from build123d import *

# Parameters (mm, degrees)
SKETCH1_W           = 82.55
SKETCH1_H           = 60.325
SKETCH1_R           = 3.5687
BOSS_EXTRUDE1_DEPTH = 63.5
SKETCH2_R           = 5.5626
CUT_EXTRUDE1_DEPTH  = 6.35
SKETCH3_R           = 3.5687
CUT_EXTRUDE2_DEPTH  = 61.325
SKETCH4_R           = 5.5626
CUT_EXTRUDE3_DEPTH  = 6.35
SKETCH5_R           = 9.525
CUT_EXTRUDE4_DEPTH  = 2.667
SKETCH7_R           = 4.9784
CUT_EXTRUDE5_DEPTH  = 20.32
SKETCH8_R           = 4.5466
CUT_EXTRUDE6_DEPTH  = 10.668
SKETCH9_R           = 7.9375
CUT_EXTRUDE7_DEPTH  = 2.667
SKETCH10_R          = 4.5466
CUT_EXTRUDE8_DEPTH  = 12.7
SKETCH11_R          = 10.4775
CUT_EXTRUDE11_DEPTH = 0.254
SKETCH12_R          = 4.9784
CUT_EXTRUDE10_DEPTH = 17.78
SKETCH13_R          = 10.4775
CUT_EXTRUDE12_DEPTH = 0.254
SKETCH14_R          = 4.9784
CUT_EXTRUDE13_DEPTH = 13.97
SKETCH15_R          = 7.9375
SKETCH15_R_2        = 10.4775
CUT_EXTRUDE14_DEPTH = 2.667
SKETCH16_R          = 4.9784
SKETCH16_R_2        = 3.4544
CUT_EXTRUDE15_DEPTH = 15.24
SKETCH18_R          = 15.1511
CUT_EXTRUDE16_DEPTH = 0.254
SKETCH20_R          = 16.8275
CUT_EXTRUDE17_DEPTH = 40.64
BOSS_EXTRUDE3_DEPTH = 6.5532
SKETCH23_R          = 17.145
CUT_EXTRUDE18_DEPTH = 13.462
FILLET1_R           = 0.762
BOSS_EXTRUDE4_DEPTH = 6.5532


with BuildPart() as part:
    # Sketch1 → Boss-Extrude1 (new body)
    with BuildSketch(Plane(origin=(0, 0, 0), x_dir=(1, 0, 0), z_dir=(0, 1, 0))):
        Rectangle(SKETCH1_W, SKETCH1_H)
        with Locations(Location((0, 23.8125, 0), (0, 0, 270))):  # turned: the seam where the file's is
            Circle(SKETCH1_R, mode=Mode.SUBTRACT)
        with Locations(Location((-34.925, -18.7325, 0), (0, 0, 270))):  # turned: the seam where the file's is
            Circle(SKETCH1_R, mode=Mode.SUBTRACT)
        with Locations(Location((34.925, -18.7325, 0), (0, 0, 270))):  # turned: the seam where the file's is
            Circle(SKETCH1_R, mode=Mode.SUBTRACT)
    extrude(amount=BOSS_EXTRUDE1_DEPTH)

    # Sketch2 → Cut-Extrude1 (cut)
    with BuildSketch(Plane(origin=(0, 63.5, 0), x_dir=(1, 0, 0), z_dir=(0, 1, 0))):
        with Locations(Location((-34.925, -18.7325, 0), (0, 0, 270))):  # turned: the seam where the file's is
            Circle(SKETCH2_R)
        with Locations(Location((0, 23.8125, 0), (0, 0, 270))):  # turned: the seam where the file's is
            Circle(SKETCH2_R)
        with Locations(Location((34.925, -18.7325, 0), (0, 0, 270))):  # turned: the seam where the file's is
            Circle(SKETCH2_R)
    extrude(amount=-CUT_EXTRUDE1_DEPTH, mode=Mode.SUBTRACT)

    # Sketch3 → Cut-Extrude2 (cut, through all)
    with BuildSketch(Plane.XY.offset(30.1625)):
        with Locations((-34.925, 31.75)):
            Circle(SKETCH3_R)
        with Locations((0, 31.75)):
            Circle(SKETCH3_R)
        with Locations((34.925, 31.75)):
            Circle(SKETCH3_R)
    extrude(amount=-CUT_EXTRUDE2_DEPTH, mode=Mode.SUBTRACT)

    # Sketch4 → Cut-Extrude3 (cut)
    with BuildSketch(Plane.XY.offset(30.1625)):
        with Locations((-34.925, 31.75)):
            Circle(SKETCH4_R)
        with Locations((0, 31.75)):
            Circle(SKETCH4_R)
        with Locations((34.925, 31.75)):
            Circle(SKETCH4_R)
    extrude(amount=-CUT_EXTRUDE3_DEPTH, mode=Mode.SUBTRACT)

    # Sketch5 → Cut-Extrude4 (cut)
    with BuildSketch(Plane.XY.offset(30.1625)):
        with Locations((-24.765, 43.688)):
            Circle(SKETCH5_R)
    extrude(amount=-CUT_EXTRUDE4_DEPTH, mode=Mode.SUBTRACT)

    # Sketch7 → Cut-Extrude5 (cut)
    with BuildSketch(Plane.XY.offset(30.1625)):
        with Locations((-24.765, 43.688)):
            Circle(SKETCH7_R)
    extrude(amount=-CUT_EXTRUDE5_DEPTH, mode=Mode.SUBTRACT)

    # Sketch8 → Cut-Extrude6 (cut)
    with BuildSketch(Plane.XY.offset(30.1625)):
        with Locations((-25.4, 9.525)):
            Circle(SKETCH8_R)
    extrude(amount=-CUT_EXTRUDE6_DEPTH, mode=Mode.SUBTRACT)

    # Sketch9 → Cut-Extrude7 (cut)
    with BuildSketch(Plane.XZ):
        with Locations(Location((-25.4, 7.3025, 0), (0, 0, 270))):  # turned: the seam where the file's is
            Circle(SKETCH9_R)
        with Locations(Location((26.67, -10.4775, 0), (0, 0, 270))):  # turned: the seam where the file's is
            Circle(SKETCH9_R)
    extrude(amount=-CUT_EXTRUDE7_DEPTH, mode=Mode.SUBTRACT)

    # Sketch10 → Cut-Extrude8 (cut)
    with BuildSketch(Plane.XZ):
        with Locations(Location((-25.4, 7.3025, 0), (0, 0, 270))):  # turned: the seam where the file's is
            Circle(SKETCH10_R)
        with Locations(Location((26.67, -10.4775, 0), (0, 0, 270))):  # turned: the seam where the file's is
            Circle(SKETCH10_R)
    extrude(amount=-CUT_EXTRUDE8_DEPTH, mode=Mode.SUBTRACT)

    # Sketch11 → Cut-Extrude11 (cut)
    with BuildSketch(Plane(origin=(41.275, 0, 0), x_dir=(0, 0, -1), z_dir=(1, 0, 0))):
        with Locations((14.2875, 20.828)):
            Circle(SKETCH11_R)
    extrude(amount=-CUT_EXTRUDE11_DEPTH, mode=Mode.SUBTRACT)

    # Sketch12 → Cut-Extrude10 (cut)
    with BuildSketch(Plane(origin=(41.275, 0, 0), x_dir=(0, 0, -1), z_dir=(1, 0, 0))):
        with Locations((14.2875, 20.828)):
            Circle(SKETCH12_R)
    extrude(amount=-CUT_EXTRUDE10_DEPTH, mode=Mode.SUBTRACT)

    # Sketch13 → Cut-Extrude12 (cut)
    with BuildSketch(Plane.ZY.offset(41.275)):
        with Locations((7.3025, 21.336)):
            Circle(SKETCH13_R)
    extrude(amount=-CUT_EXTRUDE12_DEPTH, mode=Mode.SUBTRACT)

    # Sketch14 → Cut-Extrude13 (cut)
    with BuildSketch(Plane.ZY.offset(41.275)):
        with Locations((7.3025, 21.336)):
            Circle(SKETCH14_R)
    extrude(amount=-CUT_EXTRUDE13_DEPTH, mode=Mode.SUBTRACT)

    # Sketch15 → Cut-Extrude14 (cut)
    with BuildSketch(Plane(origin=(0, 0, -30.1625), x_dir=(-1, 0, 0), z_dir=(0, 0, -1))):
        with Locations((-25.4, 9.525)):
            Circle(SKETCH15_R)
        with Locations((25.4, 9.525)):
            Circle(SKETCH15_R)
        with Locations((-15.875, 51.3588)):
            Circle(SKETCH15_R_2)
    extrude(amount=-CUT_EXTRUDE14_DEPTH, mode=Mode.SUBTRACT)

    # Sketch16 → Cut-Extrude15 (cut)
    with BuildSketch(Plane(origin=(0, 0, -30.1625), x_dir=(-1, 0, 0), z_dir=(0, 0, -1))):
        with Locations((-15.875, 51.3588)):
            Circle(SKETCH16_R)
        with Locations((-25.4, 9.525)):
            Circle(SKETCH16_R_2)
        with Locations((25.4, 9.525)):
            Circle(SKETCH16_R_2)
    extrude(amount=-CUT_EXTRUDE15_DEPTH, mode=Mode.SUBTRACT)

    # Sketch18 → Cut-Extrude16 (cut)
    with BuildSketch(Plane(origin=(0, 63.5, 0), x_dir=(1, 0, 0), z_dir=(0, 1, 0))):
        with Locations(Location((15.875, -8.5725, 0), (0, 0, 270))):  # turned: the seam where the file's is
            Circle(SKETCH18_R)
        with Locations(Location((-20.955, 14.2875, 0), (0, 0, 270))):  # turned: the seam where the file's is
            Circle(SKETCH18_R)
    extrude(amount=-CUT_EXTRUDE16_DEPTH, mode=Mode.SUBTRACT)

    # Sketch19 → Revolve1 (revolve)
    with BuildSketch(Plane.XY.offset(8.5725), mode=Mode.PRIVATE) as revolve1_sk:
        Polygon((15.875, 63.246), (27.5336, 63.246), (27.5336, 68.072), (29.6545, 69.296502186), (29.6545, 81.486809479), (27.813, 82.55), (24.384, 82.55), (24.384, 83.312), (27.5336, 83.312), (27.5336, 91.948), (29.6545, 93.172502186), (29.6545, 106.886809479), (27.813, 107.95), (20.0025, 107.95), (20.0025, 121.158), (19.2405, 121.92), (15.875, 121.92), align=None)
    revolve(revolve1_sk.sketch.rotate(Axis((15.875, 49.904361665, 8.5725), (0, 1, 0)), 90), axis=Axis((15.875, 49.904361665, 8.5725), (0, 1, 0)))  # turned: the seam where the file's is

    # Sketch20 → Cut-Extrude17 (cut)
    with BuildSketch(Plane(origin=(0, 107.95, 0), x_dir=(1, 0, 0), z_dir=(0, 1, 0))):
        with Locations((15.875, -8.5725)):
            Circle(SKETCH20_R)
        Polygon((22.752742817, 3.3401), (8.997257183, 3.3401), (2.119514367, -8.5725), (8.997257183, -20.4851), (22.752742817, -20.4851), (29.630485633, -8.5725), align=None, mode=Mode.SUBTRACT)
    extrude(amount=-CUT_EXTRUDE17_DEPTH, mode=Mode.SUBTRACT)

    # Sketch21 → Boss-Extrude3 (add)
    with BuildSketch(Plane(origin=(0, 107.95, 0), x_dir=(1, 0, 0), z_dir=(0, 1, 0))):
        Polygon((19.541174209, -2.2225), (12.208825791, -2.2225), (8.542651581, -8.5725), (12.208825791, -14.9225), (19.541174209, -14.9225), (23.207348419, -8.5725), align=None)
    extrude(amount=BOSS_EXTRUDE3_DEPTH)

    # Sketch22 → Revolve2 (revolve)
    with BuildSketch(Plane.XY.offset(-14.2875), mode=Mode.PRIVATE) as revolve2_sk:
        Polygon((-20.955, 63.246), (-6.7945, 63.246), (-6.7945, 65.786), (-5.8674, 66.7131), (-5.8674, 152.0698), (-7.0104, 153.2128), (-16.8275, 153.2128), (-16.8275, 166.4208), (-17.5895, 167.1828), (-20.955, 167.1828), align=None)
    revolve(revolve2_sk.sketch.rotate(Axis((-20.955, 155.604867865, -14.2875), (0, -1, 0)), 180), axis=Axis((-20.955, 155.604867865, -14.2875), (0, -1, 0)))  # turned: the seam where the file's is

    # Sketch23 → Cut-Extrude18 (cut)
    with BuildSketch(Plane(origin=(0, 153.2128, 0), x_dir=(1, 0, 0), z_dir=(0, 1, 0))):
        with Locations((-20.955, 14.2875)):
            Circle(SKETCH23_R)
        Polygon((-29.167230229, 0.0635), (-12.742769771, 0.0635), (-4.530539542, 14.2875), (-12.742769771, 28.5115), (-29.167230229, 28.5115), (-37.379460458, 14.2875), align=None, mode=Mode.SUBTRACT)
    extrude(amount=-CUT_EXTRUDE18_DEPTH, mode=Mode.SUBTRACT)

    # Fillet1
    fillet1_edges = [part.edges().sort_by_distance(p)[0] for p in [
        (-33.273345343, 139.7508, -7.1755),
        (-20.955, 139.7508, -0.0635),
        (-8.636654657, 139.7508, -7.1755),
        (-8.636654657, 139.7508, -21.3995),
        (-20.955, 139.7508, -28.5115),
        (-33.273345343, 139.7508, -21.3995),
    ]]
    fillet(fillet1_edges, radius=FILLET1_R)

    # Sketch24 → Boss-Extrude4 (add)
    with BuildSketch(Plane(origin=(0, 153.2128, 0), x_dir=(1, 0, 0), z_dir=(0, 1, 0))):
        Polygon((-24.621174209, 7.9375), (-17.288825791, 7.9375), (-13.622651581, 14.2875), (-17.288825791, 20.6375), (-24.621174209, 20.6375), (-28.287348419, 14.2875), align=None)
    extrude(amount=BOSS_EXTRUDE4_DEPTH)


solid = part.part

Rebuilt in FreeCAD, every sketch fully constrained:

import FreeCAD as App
import Part
import Sketcher

V = App.Vector
Q = App.Units.Quantity


def edges_at(feature, points):
    """Names of the edges that pass closest to the given points."""
    edges = feature.Shape.Edges
    near = lambda p: min(range(len(edges)), key=lambda i: edges[i].distToShape(Part.Vertex(*p))[0])
    return sorted({f"Edge{near(p) + 1}" for p in points})

doc = App.newDocument("Part")
body = doc.addObject("PartDesign::Body", "Body")

sketch1 = doc.addObject("Sketcher::SketchObject", "Sketch")
body.addObject(sketch1)
sketch1.AttachmentSupport = (doc.XZ_Plane, [""])
sketch1.MapMode = "FlatFace"
sketch1.addGeometry(Part.LineSegment(V(-41.3, -30.2, 0), V(-41.3, 30.2, 0)), False)
sketch1.addGeometry(Part.LineSegment(V(-41.3, 30.2, 0), V(41.3, 30.2, 0)), False)
sketch1.addGeometry(Part.LineSegment(V(41.3, 30.2, 0), V(41.3, -30.2, 0)), False)
sketch1.addGeometry(Part.LineSegment(V(41.3, -30.2, 0), V(-41.3, -30.2, 0)), False)
sketch1.addGeometry(Part.Circle(V(-34.9, 18.7, 0), V(0, 0, 1), 3.6), False)
sketch1.addGeometry(Part.Circle(V(34.9, 18.7, 0), V(0, 0, 1), 3.6), False)
sketch1.addGeometry(Part.Circle(V(0, -23.8, 0), V(0, 0, 1), 3.6), False)
sketch1.addConstraint(Sketcher.Constraint("Coincident", 0, 2, 1, 1))
sketch1.addConstraint(Sketcher.Constraint("Coincident", 1, 2, 2, 1))
sketch1.addConstraint(Sketcher.Constraint("Coincident", 2, 2, 3, 1))
sketch1.addConstraint(Sketcher.Constraint("Coincident", 3, 2, 0, 1))
sketch1.addConstraint(Sketcher.Constraint("Vertical", 0))
sketch1.addConstraint(Sketcher.Constraint("Horizontal", 1))
sketch1.addConstraint(Sketcher.Constraint("Vertical", 2))
sketch1.addConstraint(Sketcher.Constraint("Horizontal", 3))
sketch1.addConstraint(Sketcher.Constraint("Equal", 4, 5))
sketch1.addConstraint(Sketcher.Constraint("Equal", 5, 6))
sketch1.addConstraint(Sketcher.Constraint("Symmetric", 0, 2, 2, 2, -1, 1))
sketch1.addConstraint(Sketcher.Constraint("Symmetric", 4, 3, 5, 3, -2))
sketch1.addConstraint(Sketcher.Constraint("PointOnObject", 6, 3, -2))
sketch1.addConstraint(Sketcher.Constraint("Diameter", 4, Q("0.281 in")))
sketch1.addConstraint(Sketcher.Constraint("DistanceX", 0, 2, 5, 3, Q("3 in")))
sketch1.addConstraint(Sketcher.Constraint("DistanceX", 1, 1, 1, 2, Q("3.25 in")))
sketch1.addConstraint(Sketcher.Constraint("DistanceY", 0, 1, 0, 2, Q("2.375 in")))
sketch1.addConstraint(Sketcher.Constraint("DistanceY", 4, 3, 0, 2, Q("0.45 in")))
sketch1.addConstraint(Sketcher.Constraint("DistanceY", 2, 2, 6, 3, Q("0.25 in")))
pad1 = doc.addObject("PartDesign::Pad", "Pad")
body.addObject(pad1)
pad1.Profile = sketch1
pad1.Length = Q("2.5 in")
pad1.Reversed = True

sketch2 = doc.addObject("Sketcher::SketchObject", "Sketch001")
body.addObject(sketch2)
sketch2.AttachmentSupport = (doc.XZ_Plane, [""])
sketch2.MapMode = "FlatFace"
sketch2.AttachmentOffset = App.Placement(V(0, 0, -2.5 * 25.4), App.Rotation())
sketch2.addGeometry(Part.Circle(V(-35, 19, 0), V(0, 0, 1), 6), False)
sketch2.addGeometry(Part.Circle(V(0, -24, 0), V(0, 0, 1), 6), False)
sketch2.addGeometry(Part.Circle(V(35, 19, 0), V(0, 0, 1), 6), False)
sketch2.addConstraint(Sketcher.Constraint("Equal", 0, 1))
sketch2.addConstraint(Sketcher.Constraint("Equal", 1, 2))
sketch2.addConstraint(Sketcher.Constraint("Symmetric", 0, 3, 2, 3, -2))
sketch2.addConstraint(Sketcher.Constraint("PointOnObject", 1, 3, -2))
sketch2.addConstraint(Sketcher.Constraint("Diameter", 0, Q("0.438 in")))
sketch2.addConstraint(Sketcher.Constraint("DistanceX", 0, 3, 2, 3, Q("2.75 in")))
sketch2.addConstraint(Sketcher.Constraint("DistanceY", 1, 3, -1, 1, Q("0.9375 in")))
sketch2.addConstraint(Sketcher.Constraint("DistanceY", 1, 3, 0, 3, Q("1.675 in")))
pocket1 = doc.addObject("PartDesign::Pocket", "Pocket")
body.addObject(pocket1)
pocket1.Profile = sketch2
pocket1.Length = Q("0.25 in")
pocket1.Reversed = True

sketch3 = doc.addObject("Sketcher::SketchObject", "Sketch002")
body.addObject(sketch3)
sketch3.AttachmentSupport = (doc.XY_Plane, [""])
sketch3.MapMode = "FlatFace"
sketch3.AttachmentOffset = App.Placement(V(0, 0, 1.1875 * 25.4), App.Rotation())
sketch3.addGeometry(Part.Circle(V(-34.9, 31.8, 0), V(0, 0, 1), 3.6), False)
sketch3.addGeometry(Part.Circle(V(0, 31.8, 0), V(0, 0, 1), 3.6), False)
sketch3.addGeometry(Part.Circle(V(34.9, 31.8, 0), V(0, 0, 1), 3.6), False)
sketch3.addConstraint(Sketcher.Constraint("Equal", 0, 1))
sketch3.addConstraint(Sketcher.Constraint("Equal", 1, 2))
sketch3.addConstraint(Sketcher.Constraint("Symmetric", 0, 3, 2, 3, -2))
sketch3.addConstraint(Sketcher.Constraint("PointOnObject", 1, 3, -2))
sketch3.addConstraint(Sketcher.Constraint("Horizontal", 0, 3, 1, 3))
sketch3.addConstraint(Sketcher.Constraint("Diameter", 0, Q("0.281 in")))
sketch3.addConstraint(Sketcher.Constraint("DistanceY", -1, 1, 0, 3, Q("1.25 in")))
sketch3.addConstraint(Sketcher.Constraint("DistanceX", 0, 3, 2, 3, Q("2.75 in")))
pocket2 = doc.addObject("PartDesign::Pocket", "Pocket001")
body.addObject(pocket2)
pocket2.Profile = sketch3
pocket2.Type = "ThroughAll"

sketch4 = doc.addObject("Sketcher::SketchObject", "Sketch003")
body.addObject(sketch4)
sketch4.AttachmentSupport = (doc.XY_Plane, [""])
sketch4.MapMode = "FlatFace"
sketch4.AttachmentOffset = App.Placement(V(0, 0, 1.1875 * 25.4), App.Rotation())
sketch4.addGeometry(Part.Circle(V(-35, 32, 0), V(0, 0, 1), 6), False)
sketch4.addGeometry(Part.Circle(V(0, 32, 0), V(0, 0, 1), 6), False)
sketch4.addGeometry(Part.Circle(V(35, 32, 0), V(0, 0, 1), 6), False)
sketch4.addConstraint(Sketcher.Constraint("Equal", 0, 1))
sketch4.addConstraint(Sketcher.Constraint("Equal", 1, 2))
sketch4.addConstraint(Sketcher.Constraint("Symmetric", 0, 3, 2, 3, -2))
sketch4.addConstraint(Sketcher.Constraint("PointOnObject", 1, 3, -2))
sketch4.addConstraint(Sketcher.Constraint("Horizontal", 0, 3, 1, 3))
sketch4.addConstraint(Sketcher.Constraint("Diameter", 0, Q("0.438 in")))
sketch4.addConstraint(Sketcher.Constraint("DistanceY", -1, 1, 0, 3, Q("1.25 in")))
sketch4.addConstraint(Sketcher.Constraint("DistanceX", 0, 3, 2, 3, Q("2.75 in")))
pocket3 = doc.addObject("PartDesign::Pocket", "Pocket002")
body.addObject(pocket3)
pocket3.Profile = sketch4
pocket3.Length = Q("0.25 in")

sketch5 = doc.addObject("Sketcher::SketchObject", "Sketch004")
body.addObject(sketch5)
sketch5.AttachmentSupport = (doc.XY_Plane, [""])
sketch5.MapMode = "FlatFace"
sketch5.AttachmentOffset = App.Placement(V(0, 0, 1.1875 * 25.4), App.Rotation())
sketch5.addGeometry(Part.Circle(V(-25, 44, 0), V(0, 0, 1), 10), False)
sketch5.addConstraint(Sketcher.Constraint("Diameter", 0, Q("0.75 in")))
sketch5.addConstraint(Sketcher.Constraint("DistanceY", -1, 1, 0, 3, Q("1.72 in")))
sketch5.addConstraint(Sketcher.Constraint("DistanceX", 0, 3, -1, 1, Q("0.975 in")))
pocket4 = doc.addObject("PartDesign::Pocket", "Pocket003")
body.addObject(pocket4)
pocket4.Profile = sketch5
pocket4.Length = Q("0.105 in")

sketch6 = doc.addObject("Sketcher::SketchObject", "Sketch005")
body.addObject(sketch6)
sketch6.AttachmentSupport = (doc.XY_Plane, [""])
sketch6.MapMode = "FlatFace"
sketch6.AttachmentOffset = App.Placement(V(0, 0, 1.1875 * 25.4), App.Rotation())
sketch6.addGeometry(Part.Circle(V(-24.8, 43.7, 0), V(0, 0, 1), 5), False)
sketch6.addConstraint(Sketcher.Constraint("Diameter", 0, Q("0.392 in")))
sketch6.addConstraint(Sketcher.Constraint("DistanceY", -1, 1, 0, 3, Q("1.72 in")))
sketch6.addConstraint(Sketcher.Constraint("DistanceX", 0, 3, -1, 1, Q("0.975 in")))
pocket5 = doc.addObject("PartDesign::Pocket", "Pocket004")
body.addObject(pocket5)
pocket5.Profile = sketch6
pocket5.Length = Q("0.8 in")

sketch7 = doc.addObject("Sketcher::SketchObject", "Sketch006")
body.addObject(sketch7)
sketch7.AttachmentSupport = (doc.XY_Plane, [""])
sketch7.MapMode = "FlatFace"
sketch7.AttachmentOffset = App.Placement(V(0, 0, 1.1875 * 25.4), App.Rotation())
sketch7.addGeometry(Part.Circle(V(-25.4, 9.5, 0), V(0, 0, 1), 4.5), False)
sketch7.addConstraint(Sketcher.Constraint("Diameter", 0, Q("0.358 in")))
sketch7.addConstraint(Sketcher.Constraint("DistanceX", 0, 3, -1, 1, Q("1 in")))
sketch7.addConstraint(Sketcher.Constraint("DistanceY", -1, 1, 0, 3, Q("0.375 in")))
pocket6 = doc.addObject("PartDesign::Pocket", "Pocket005")
body.addObject(pocket6)
pocket6.Profile = sketch7
pocket6.Length = Q("0.42 in")

sketch8 = doc.addObject("Sketcher::SketchObject", "Sketch007")
body.addObject(sketch8)
sketch8.AttachmentSupport = (doc.XZ_Plane, [""])
sketch8.MapMode = "FlatFace"
sketch8.addGeometry(Part.Circle(V(-25, 7, 0), V(0, 0, 1), 8), False)
sketch8.addGeometry(Part.Circle(V(27, -10, 0), V(0, 0, 1), 8), False)
sketch8.addConstraint(Sketcher.Constraint("Equal", 0, 1))
sketch8.addConstraint(Sketcher.Constraint("Diameter", 0, Q("0.625 in")))
sketch8.addConstraint(Sketcher.Constraint("DistanceX", 0, 3, -1, 1, Q("1 in")))
sketch8.addConstraint(Sketcher.Constraint("DistanceY", 1, 3, 0, 3, Q("0.7 in")))
sketch8.addConstraint(Sketcher.Constraint("DistanceX", -1, 1, 1, 3, Q("1.05 in")))
sketch8.addConstraint(Sketcher.Constraint("DistanceY", -1, 1, 0, 3, Q("0.2875 in")))
pocket7 = doc.addObject("PartDesign::Pocket", "Pocket006")
body.addObject(pocket7)
pocket7.Profile = sketch8
pocket7.Length = Q("0.105 in")

sketch9 = doc.addObject("Sketcher::SketchObject", "Sketch008")
body.addObject(sketch9)
sketch9.AttachmentSupport = (doc.XZ_Plane, [""])
sketch9.MapMode = "FlatFace"
sketch9.addGeometry(Part.Circle(V(-25.4, 7.3, 0), V(0, 0, 1), 4.5), False)
sketch9.addGeometry(Part.Circle(V(26.7, -10.5, 0), V(0, 0, 1), 4.5), False)
sketch9.addConstraint(Sketcher.Constraint("Equal", 0, 1))
sketch9.addConstraint(Sketcher.Constraint("Diameter", 0, Q("0.358 in")))
sketch9.addConstraint(Sketcher.Constraint("DistanceX", 0, 3, -1, 1, Q("1 in")))
sketch9.addConstraint(Sketcher.Constraint("DistanceY", 1, 3, 0, 3, Q("0.7 in")))
sketch9.addConstraint(Sketcher.Constraint("DistanceX", -1, 1, 1, 3, Q("1.05 in")))
sketch9.addConstraint(Sketcher.Constraint("DistanceY", -1, 1, 0, 3, Q("0.2875 in")))
pocket8 = doc.addObject("PartDesign::Pocket", "Pocket007")
body.addObject(pocket8)
pocket8.Profile = sketch9
pocket8.Length = Q("0.5 in")

sketch10 = doc.addObject("Sketcher::SketchObject", "Sketch009")
body.addObject(sketch10)
sketch10.AttachmentSupport = (doc.YZ_Plane, [""])
sketch10.MapMode = "FlatFace"
sketch10.AttachmentOffset = App.Placement(V(0, 0, 1.625 * 25.4), App.Rotation())
sketch10.addGeometry(Part.Circle(V(21, -14, 0), V(0, 0, 1), 10), False)
sketch10.addConstraint(Sketcher.Constraint("Diameter", 0, Q("0.825 in")))
sketch10.addConstraint(Sketcher.Constraint("DistanceX", -1, 1, 0, 3, Q("0.82 in")))
sketch10.addConstraint(Sketcher.Constraint("DistanceY", 0, 3, -1, 1, Q("0.5625 in")))
pocket9 = doc.addObject("PartDesign::Pocket", "Pocket008")
body.addObject(pocket9)
pocket9.Profile = sketch10
pocket9.Length = Q("0.01 in")

sketch11 = doc.addObject("Sketcher::SketchObject", "Sketch010")
body.addObject(sketch11)
sketch11.AttachmentSupport = (doc.YZ_Plane, [""])
sketch11.MapMode = "FlatFace"
sketch11.AttachmentOffset = App.Placement(V(0, 0, 1.625 * 25.4), App.Rotation())
sketch11.addGeometry(Part.Circle(V(20.8, -14.3, 0), V(0, 0, 1), 5), False)
sketch11.addConstraint(Sketcher.Constraint("Diameter", 0, Q("0.392 in")))
sketch11.addConstraint(Sketcher.Constraint("DistanceX", -1, 1, 0, 3, Q("0.82 in")))
sketch11.addConstraint(Sketcher.Constraint("DistanceY", 0, 3, -1, 1, Q("0.5625 in")))
pocket10 = doc.addObject("PartDesign::Pocket", "Pocket009")
body.addObject(pocket10)
pocket10.Profile = sketch11
pocket10.Length = Q("0.7 in")

sketch12 = doc.addObject("Sketcher::SketchObject", "Sketch011")
body.addObject(sketch12)
sketch12.AttachmentSupport = (doc.YZ_Plane, [""])
sketch12.MapMode = "FlatFace"
sketch12.AttachmentOffset = App.Placement(V(0, 0, -1.625 * 25.4), App.Rotation())
sketch12.addGeometry(Part.Circle(V(21, 7, 0), V(0, 0, 1), 10), False)
sketch12.addConstraint(Sketcher.Constraint("Diameter", 0, Q("0.825 in")))
sketch12.addConstraint(Sketcher.Constraint("DistanceX", -1, 1, 0, 3, Q("0.84 in")))
sketch12.addConstraint(Sketcher.Constraint("DistanceY", -1, 1, 0, 3, Q("0.2875 in")))
pocket11 = doc.addObject("PartDesign::Pocket", "Pocket010")
body.addObject(pocket11)
pocket11.Profile = sketch12
pocket11.Length = Q("0.01 in")
pocket11.Reversed = True

sketch13 = doc.addObject("Sketcher::SketchObject", "Sketch012")
body.addObject(sketch13)
sketch13.AttachmentSupport = (doc.YZ_Plane, [""])
sketch13.MapMode = "FlatFace"
sketch13.AttachmentOffset = App.Placement(V(0, 0, -1.625 * 25.4), App.Rotation())
sketch13.addGeometry(Part.Circle(V(21.3, 7.3, 0), V(0, 0, 1), 5), False)
sketch13.addConstraint(Sketcher.Constraint("Diameter", 0, Q("0.392 in")))
sketch13.addConstraint(Sketcher.Constraint("DistanceX", -1, 1, 0, 3, Q("0.84 in")))
sketch13.addConstraint(Sketcher.Constraint("DistanceY", -1, 1, 0, 3, Q("0.2875 in")))
pocket12 = doc.addObject("PartDesign::Pocket", "Pocket011")
body.addObject(pocket12)
pocket12.Profile = sketch13
pocket12.Length = Q("0.55 in")
pocket12.Reversed = True

sketch14 = doc.addObject("Sketcher::SketchObject", "Sketch013")
body.addObject(sketch14)
sketch14.AttachmentSupport = (doc.XY_Plane, [""])
sketch14.MapMode = "FlatFace"
sketch14.AttachmentOffset = App.Placement(V(0, 0, -1.1875 * 25.4), App.Rotation())
sketch14.addGeometry(Part.Circle(V(25, 10, 0), V(0, 0, 1), 8), False)
sketch14.addGeometry(Part.Circle(V(-25, 10, 0), V(0, 0, 1), 8), False)
sketch14.addGeometry(Part.Circle(V(16, 51, 0), V(0, 0, 1), 10), False)
sketch14.addConstraint(Sketcher.Constraint("Equal", 0, 1))
sketch14.addConstraint(Sketcher.Constraint("Symmetric", 0, 3, 1, 3, -2))
sketch14.addConstraint(Sketcher.Constraint("Diameter", 0, Q("0.625 in")))
sketch14.addConstraint(Sketcher.Constraint("Diameter", 2, Q("0.825 in")))
sketch14.addConstraint(Sketcher.Constraint("DistanceX", -1, 1, 0, 3, Q("1 in")))
sketch14.addConstraint(Sketcher.Constraint("DistanceY", -1, 1, 0, 3, Q("0.375 in")))
sketch14.addConstraint(Sketcher.Constraint("DistanceX", -1, 1, 2, 3, Q("0.625 in")))
sketch14.addConstraint(Sketcher.Constraint("DistanceY", -1, 1, 2, 3, Q("2.022 in")))
pocket13 = doc.addObject("PartDesign::Pocket", "Pocket012")
body.addObject(pocket13)
pocket13.Profile = sketch14
pocket13.Length = Q("0.105 in")
pocket13.Reversed = True

sketch15 = doc.addObject("Sketcher::SketchObject", "Sketch014")
body.addObject(sketch15)
sketch15.AttachmentSupport = (doc.XY_Plane, [""])
sketch15.MapMode = "FlatFace"
sketch15.AttachmentOffset = App.Placement(V(0, 0, -1.1875 * 25.4), App.Rotation())
sketch15.addGeometry(Part.Circle(V(15.9, 51.4, 0), V(0, 0, 1), 5), False)
sketch15.addGeometry(Part.Circle(V(25.4, 9.5, 0), V(0, 0, 1), 3.5), False)
sketch15.addGeometry(Part.Circle(V(-25.4, 9.5, 0), V(0, 0, 1), 3.5), False)
sketch15.addConstraint(Sketcher.Constraint("Equal", 1, 2))
sketch15.addConstraint(Sketcher.Constraint("Symmetric", 1, 3, 2, 3, -2))
sketch15.addConstraint(Sketcher.Constraint("Diameter", 0, Q("0.392 in")))
sketch15.addConstraint(Sketcher.Constraint("Diameter", 1, Q("0.272 in")))
sketch15.addConstraint(Sketcher.Constraint("DistanceX", -1, 1, 1, 3, Q("1 in")))
sketch15.addConstraint(Sketcher.Constraint("DistanceX", -1, 1, 0, 3, Q("0.625 in")))
sketch15.addConstraint(Sketcher.Constraint("DistanceY", -1, 1, 0, 3, Q("2.022 in")))
sketch15.addConstraint(Sketcher.Constraint("DistanceY", -1, 1, 1, 3, Q("0.375 in")))
pocket14 = doc.addObject("PartDesign::Pocket", "Pocket013")
body.addObject(pocket14)
pocket14.Profile = sketch15
pocket14.Length = Q("0.6 in")
pocket14.Reversed = True

sketch16 = doc.addObject("Sketcher::SketchObject", "Sketch015")
body.addObject(sketch16)
sketch16.AttachmentSupport = (doc.XZ_Plane, [""])
sketch16.MapMode = "FlatFace"
sketch16.AttachmentOffset = App.Placement(V(0, 0, -2.5 * 25.4), App.Rotation())
sketch16.addGeometry(Part.Circle(V(16, 9, 0), V(0, 0, 1), 15), False)
sketch16.addGeometry(Part.Circle(V(-21, -14, 0), V(0, 0, 1), 15), False)
sketch16.addConstraint(Sketcher.Constraint("Equal", 0, 1))
sketch16.addConstraint(Sketcher.Constraint("Diameter", 0, Q("1.193 in")))
sketch16.addConstraint(Sketcher.Constraint("DistanceY", 1, 3, 0, 3, Q("0.9 in")))
sketch16.addConstraint(Sketcher.Constraint("DistanceX", 1, 3, 0, 3, Q("1.45 in")))
sketch16.addConstraint(Sketcher.Constraint("DistanceX", -1, 1, 0, 3, Q("0.625 in")))
sketch16.addConstraint(Sketcher.Constraint("DistanceY", 1, 3, -1, 1, Q("0.5625 in")))
pocket15 = doc.addObject("PartDesign::Pocket", "Pocket014")
body.addObject(pocket15)
pocket15.Profile = sketch16
pocket15.Length = Q("0.01 in")
pocket15.Reversed = True

sketch17 = doc.addObject("Sketcher::SketchObject", "Sketch016")
body.addObject(sketch17)
sketch17.AttachmentSupport = (doc.XY_Plane, [""])
sketch17.MapMode = "FlatFace"
sketch17.AttachmentOffset = App.Placement(V(0, 0, 0.3375 * 25.4), App.Rotation())
sketch17.addGeometry(Part.LineSegment(V(15.9, 63.2, 0), V(27.5, 63.2, 0)), False)
sketch17.addGeometry(Part.LineSegment(V(27.5, 63.2, 0), V(27.5, 68.1, 0)), False)
sketch17.addGeometry(Part.LineSegment(V(27.5, 68.1, 0), V(29.7, 69.3, 0)), False)
sketch17.addGeometry(Part.LineSegment(V(29.7, 69.3, 0), V(29.7, 81.5, 0)), False)
sketch17.addGeometry(Part.LineSegment(V(29.7, 81.5, 0), V(27.8, 82.5, 0)), False)
sketch17.addGeometry(Part.LineSegment(V(27.8, 82.5, 0), V(24.4, 82.5, 0)), False)
sketch17.addGeometry(Part.LineSegment(V(24.4, 82.5, 0), V(24.4, 83.3, 0)), False)
sketch17.addGeometry(Part.LineSegment(V(24.4, 83.3, 0), V(27.5, 83.3, 0)), False)
sketch17.addGeometry(Part.LineSegment(V(27.5, 83.3, 0), V(27.5, 91.9, 0)), False)
sketch17.addGeometry(Part.LineSegment(V(27.5, 91.9, 0), V(29.7, 93.2, 0)), False)
sketch17.addGeometry(Part.LineSegment(V(29.7, 93.2, 0), V(29.7, 106.9, 0)), False)
sketch17.addGeometry(Part.LineSegment(V(29.7, 106.9, 0), V(27.8, 108, 0)), False)
sketch17.addGeometry(Part.LineSegment(V(27.8, 108, 0), V(20, 108, 0)), False)
sketch17.addGeometry(Part.LineSegment(V(20, 108, 0), V(20, 121.2, 0)), False)
sketch17.addGeometry(Part.LineSegment(V(20, 121.2, 0), V(19.2, 121.9, 0)), False)
sketch17.addGeometry(Part.LineSegment(V(19.2, 121.9, 0), V(15.9, 121.9, 0)), False)
sketch17.addGeometry(Part.LineSegment(V(15.9, 121.9, 0), V(15.9, 63.2, 0)), False)
sketch17.addGeometry(Part.LineSegment(V(15.9, 63.2, 0), V(15.9, 121.9, 0)), True)
sketch17.addConstraint(Sketcher.Constraint("Coincident", 0, 2, 1, 1))
sketch17.addConstraint(Sketcher.Constraint("Coincident", 1, 2, 2, 1))
sketch17.addConstraint(Sketcher.Constraint("Coincident", 2, 2, 3, 1))
sketch17.addConstraint(Sketcher.Constraint("Coincident", 3, 2, 4, 1))
sketch17.addConstraint(Sketcher.Constraint("Coincident", 4, 2, 5, 1))
sketch17.addConstraint(Sketcher.Constraint("Coincident", 5, 2, 6, 1))
sketch17.addConstraint(Sketcher.Constraint("Coincident", 6, 2, 7, 1))
sketch17.addConstraint(Sketcher.Constraint("Coincident", 7, 2, 8, 1))
sketch17.addConstraint(Sketcher.Constraint("Coincident", 8, 2, 9, 1))
sketch17.addConstraint(Sketcher.Constraint("Coincident", 9, 2, 10, 1))
sketch17.addConstraint(Sketcher.Constraint("Coincident", 10, 2, 11, 1))
sketch17.addConstraint(Sketcher.Constraint("Coincident", 11, 2, 12, 1))
sketch17.addConstraint(Sketcher.Constraint("Coincident", 12, 2, 13, 1))
sketch17.addConstraint(Sketcher.Constraint("Coincident", 13, 2, 14, 1))
sketch17.addConstraint(Sketcher.Constraint("Coincident", 14, 2, 15, 1))
sketch17.addConstraint(Sketcher.Constraint("Coincident", 15, 2, 16, 1))
sketch17.addConstraint(Sketcher.Constraint("Coincident", 16, 2, 0, 1))
sketch17.addConstraint(Sketcher.Constraint("Horizontal", 0))
sketch17.addConstraint(Sketcher.Constraint("Vertical", 1))
sketch17.addConstraint(Sketcher.Constraint("Vertical", 3))
sketch17.addConstraint(Sketcher.Constraint("Horizontal", 5))
sketch17.addConstraint(Sketcher.Constraint("Vertical", 6))
sketch17.addConstraint(Sketcher.Constraint("Horizontal", 7))
sketch17.addConstraint(Sketcher.Constraint("Vertical", 8))
sketch17.addConstraint(Sketcher.Constraint("Vertical", 10))
sketch17.addConstraint(Sketcher.Constraint("Horizontal", 12))
sketch17.addConstraint(Sketcher.Constraint("Vertical", 13))
sketch17.addConstraint(Sketcher.Constraint("Horizontal", 15))
sketch17.addConstraint(Sketcher.Constraint("Vertical", 16))
sketch17.addConstraint(Sketcher.Constraint("Vertical", 17))
sketch17.addConstraint(Sketcher.Constraint("Coincident", 17, 1, 16, 2))
sketch17.addConstraint(Sketcher.Constraint("Parallel", 2, 9))
sketch17.addConstraint(Sketcher.Constraint("Parallel", 4, 11))
sketch17.addConstraint(Sketcher.Constraint("Horizontal", 14, 2, 17, 2))
sketch17.addConstraint(Sketcher.Constraint("Vertical", 1, 2, 7, 2))
sketch17.addConstraint(Sketcher.Constraint("Vertical", 3, 2, 9, 2))
sketch17.addConstraint(Sketcher.Constraint("Vertical", 4, 2, 11, 2))
sketch17.addConstraint(Sketcher.Constraint("Angle", 2, Q("30 deg")))
sketch17.addConstraint(Sketcher.Constraint("Angle", 4, Q("150 deg")))
sketch17.addConstraint(Sketcher.Constraint("Angle", 14, Q("135 deg")))
sketch17.addConstraint(Sketcher.Constraint("DistanceY", 1, 1, 1, 2, Q("0.19 in")))
sketch17.addConstraint(Sketcher.Constraint("DistanceY", 6, 1, 6, 2, Q("0.03 in")))
sketch17.addConstraint(Sketcher.Constraint("DistanceY", 8, 1, 8, 2, Q("0.34 in")))
sketch17.addConstraint(Sketcher.Constraint("DistanceY", 13, 1, 13, 2, Q("0.52 in")))
sketch17.addConstraint(Sketcher.Constraint("DistanceY", 16, 2, 16, 1, Q("2.31 in")))
sketch17.addConstraint(Sketcher.Constraint("DistanceY", -1, 1, 14, 2, Q("4.8 in")))
sketch17.addConstraint(Sketcher.Constraint("DistanceY", 1, 2, 6, 2, Q("0.6 in")))
sketch17.addConstraint(Sketcher.Constraint("DistanceX", 0, 1, 0, 2, Q("0.459 in")))
sketch17.addConstraint(Sketcher.Constraint("DistanceX", 5, 2, 5, 1, Q("0.135 in")))
sketch17.addConstraint(Sketcher.Constraint("DistanceX", 7, 1, 7, 2, Q("0.124 in")))
sketch17.addConstraint(Sketcher.Constraint("DistanceX", -1, 1, 5, 2, Q("0.96 in")))
sketch17.addConstraint(Sketcher.Constraint("DistanceY", -1, 1, 11, 2, Q("4.25 in")))
sketch17.addConstraint(Sketcher.Constraint("DistanceX", 12, 2, 10, 2, Q("0.38 in")))
sketch17.addConstraint(Sketcher.Constraint("DistanceX", 12, 2, 12, 1, Q("0.3075 in")))
revolution = doc.addObject("PartDesign::Revolution", "Revolution")
body.addObject(revolution)
revolution.Profile = sketch17
revolution.ReferenceAxis = (sketch17, ["Axis0"])
revolution.Angle = 360

sketch18 = doc.addObject("Sketcher::SketchObject", "Sketch017")
body.addObject(sketch18)
sketch18.AttachmentSupport = (doc.XZ_Plane, [""])
sketch18.MapMode = "FlatFace"
sketch18.AttachmentOffset = App.Placement(V(0, 0, -4.25 * 25.4), App.Rotation())
sketch18.addGeometry(Part.Circle(V(16, 9, 0), V(0, 0, 1), 17), False)
sketch18.addGeometry(Part.LineSegment(V(9, -3, 0), V(23, -3, 0)), False)
sketch18.addGeometry(Part.LineSegment(V(23, -3, 0), V(30, 9, 0)), False)
sketch18.addGeometry(Part.LineSegment(V(30, 9, 0), V(23, 20, 0)), False)
sketch18.addGeometry(Part.LineSegment(V(23, 20, 0), V(9, 20, 0)), False)
sketch18.addGeometry(Part.LineSegment(V(9, 20, 0), V(2, 9, 0)), False)
sketch18.addGeometry(Part.LineSegment(V(2, 9, 0), V(9, -3, 0)), False)
sketch18.addConstraint(Sketcher.Constraint("Coincident", 1, 2, 2, 1))
sketch18.addConstraint(Sketcher.Constraint("Coincident", 2, 2, 3, 1))
sketch18.addConstraint(Sketcher.Constraint("Coincident", 3, 2, 4, 1))
sketch18.addConstraint(Sketcher.Constraint("Coincident", 4, 2, 5, 1))
sketch18.addConstraint(Sketcher.Constraint("Coincident", 5, 2, 6, 1))
sketch18.addConstraint(Sketcher.Constraint("Coincident", 6, 2, 1, 1))
sketch18.addConstraint(Sketcher.Constraint("Horizontal", 1))
sketch18.addConstraint(Sketcher.Constraint("Horizontal", 4))
sketch18.addConstraint(Sketcher.Constraint("Parallel", 2, 5))
sketch18.addConstraint(Sketcher.Constraint("Parallel", 3, 6))
sketch18.addConstraint(Sketcher.Constraint("Horizontal", 0, 3, 2, 2))
sketch18.addConstraint(Sketcher.Constraint("Horizontal", 2, 2, 5, 2))
sketch18.addConstraint(Sketcher.Constraint("Vertical", 1, 2, 3, 2))
sketch18.addConstraint(Sketcher.Constraint("Vertical", 4, 2, 6, 2))
sketch18.addConstraint(Sketcher.Constraint("Diameter", 0, Q("1.325 in")))
sketch18.addConstraint(Sketcher.Constraint("Angle", 2, Q("60 deg")))
sketch18.addConstraint(Sketcher.Constraint("DistanceX", -1, 1, 0, 3, Q("0.625 in")))
sketch18.addConstraint(Sketcher.Constraint("DistanceY", 1, 2, 0, 3, Q("0.469 in")))
sketch18.addConstraint(Sketcher.Constraint("DistanceY", -1, 1, 0, 3, Q("0.3375 in")))
sketch18.addConstraint(Sketcher.Constraint("DistanceX", 1, 1, 1, 2, 13.755486))
sketch18.addConstraint(Sketcher.Constraint("DistanceX", -1, 1, 1, 2, 22.752743))
pocket16 = doc.addObject("PartDesign::Pocket", "Pocket015")
body.addObject(pocket16)
pocket16.Profile = sketch18
pocket16.Length = Q("1.6 in")
pocket16.Reversed = True

sketch19 = doc.addObject("Sketcher::SketchObject", "Sketch018")
body.addObject(sketch19)
sketch19.AttachmentSupport = (doc.XZ_Plane, [""])
sketch19.MapMode = "FlatFace"
sketch19.AttachmentOffset = App.Placement(V(0, 0, -4.25 * 25.4), App.Rotation())
sketch19.addGeometry(Part.LineSegment(V(20, 2, 0), V(12, 2, 0)), False)
sketch19.addGeometry(Part.LineSegment(V(12, 2, 0), V(9, 9, 0)), False)
sketch19.addGeometry(Part.LineSegment(V(9, 9, 0), V(12, 15, 0)), False)
sketch19.addGeometry(Part.LineSegment(V(12, 15, 0), V(20, 15, 0)), False)
sketch19.addGeometry(Part.LineSegment(V(20, 15, 0), V(23, 9, 0)), False)
sketch19.addGeometry(Part.LineSegment(V(23, 9, 0), V(20, 2, 0)), False)
sketch19.addConstraint(Sketcher.Constraint("Coincident", 0, 2, 1, 1))
sketch19.addConstraint(Sketcher.Constraint("Coincident", 1, 2, 2, 1))
sketch19.addConstraint(Sketcher.Constraint("Coincident", 2, 2, 3, 1))
sketch19.addConstraint(Sketcher.Constraint("Coincident", 3, 2, 4, 1))
sketch19.addConstraint(Sketcher.Constraint("Coincident", 4, 2, 5, 1))
sketch19.addConstraint(Sketcher.Constraint("Coincident", 5, 2, 0, 1))
sketch19.addConstraint(Sketcher.Constraint("Horizontal", 0))
sketch19.addConstraint(Sketcher.Constraint("Horizontal", 3))
sketch19.addConstraint(Sketcher.Constraint("Parallel", 1, 4))
sketch19.addConstraint(Sketcher.Constraint("Parallel", 2, 5))
sketch19.addConstraint(Sketcher.Constraint("Horizontal", 1, 2, 4, 2))
sketch19.addConstraint(Sketcher.Constraint("Vertical", 0, 2, 2, 2))
sketch19.addConstraint(Sketcher.Constraint("Vertical", 3, 2, 5, 2))
sketch19.addConstraint(Sketcher.Constraint("Angle", 1, Q("120 deg")))
sketch19.addConstraint(Sketcher.Constraint("DistanceY", 0, 2, 2, 2, Q("0.5 in")))
sketch19.addConstraint(Sketcher.Constraint("DistanceY", -1, 1, 0, 2, Q("0.0875 in")))
sketch19.addConstraint(Sketcher.Constraint("DistanceX", 0, 2, 0, 1, 7.332348))
sketch19.addConstraint(Sketcher.Constraint("DistanceX", -1, 1, 1, 2, 8.542652))
pad2 = doc.addObject("PartDesign::Pad", "Pad001")
body.addObject(pad2)
pad2.Profile = sketch19
pad2.Length = Q("0.258 in")
pad2.Reversed = True

sketch20 = doc.addObject("Sketcher::SketchObject", "Sketch019")
body.addObject(sketch20)
sketch20.AttachmentSupport = (doc.XY_Plane, [""])
sketch20.MapMode = "FlatFace"
sketch20.AttachmentOffset = App.Placement(V(0, 0, -0.5625 * 25.4), App.Rotation())
sketch20.addGeometry(Part.LineSegment(V(-21, 63.2, 0), V(-6.8, 63.2, 0)), False)
sketch20.addGeometry(Part.LineSegment(V(-6.8, 63.2, 0), V(-6.8, 65.8, 0)), False)
sketch20.addGeometry(Part.LineSegment(V(-6.8, 65.8, 0), V(-5.9, 66.7, 0)), False)
sketch20.addGeometry(Part.LineSegment(V(-5.9, 66.7, 0), V(-5.9, 152.1, 0)), False)
sketch20.addGeometry(Part.LineSegment(V(-5.9, 152.1, 0), V(-7, 153.2, 0)), False)
sketch20.addGeometry(Part.LineSegment(V(-7, 153.2, 0), V(-16.8, 153.2, 0)), False)
sketch20.addGeometry(Part.LineSegment(V(-16.8, 153.2, 0), V(-16.8, 166.4, 0)), False)
sketch20.addGeometry(Part.LineSegment(V(-16.8, 166.4, 0), V(-17.6, 167.2, 0)), False)
sketch20.addGeometry(Part.LineSegment(V(-17.6, 167.2, 0), V(-21, 167.2, 0)), False)
sketch20.addGeometry(Part.LineSegment(V(-21, 167.2, 0), V(-21, 63.2, 0)), False)
sketch20.addGeometry(Part.LineSegment(V(-21, 167.2, 0), V(-21, 63.2, 0)), True)
sketch20.addConstraint(Sketcher.Constraint("Coincident", 0, 2, 1, 1))
sketch20.addConstraint(Sketcher.Constraint("Coincident", 1, 2, 2, 1))
sketch20.addConstraint(Sketcher.Constraint("Coincident", 2, 2, 3, 1))
sketch20.addConstraint(Sketcher.Constraint("Coincident", 3, 2, 4, 1))
sketch20.addConstraint(Sketcher.Constraint("Coincident", 4, 2, 5, 1))
sketch20.addConstraint(Sketcher.Constraint("Coincident", 5, 2, 6, 1))
sketch20.addConstraint(Sketcher.Constraint("Coincident", 6, 2, 7, 1))
sketch20.addConstraint(Sketcher.Constraint("Coincident", 7, 2, 8, 1))
sketch20.addConstraint(Sketcher.Constraint("Coincident", 8, 2, 9, 1))
sketch20.addConstraint(Sketcher.Constraint("Coincident", 9, 2, 0, 1))
sketch20.addConstraint(Sketcher.Constraint("Horizontal", 0))
sketch20.addConstraint(Sketcher.Constraint("Vertical", 1))
sketch20.addConstraint(Sketcher.Constraint("Vertical", 3))
sketch20.addConstraint(Sketcher.Constraint("Horizontal", 5))
sketch20.addConstraint(Sketcher.Constraint("Vertical", 6))
sketch20.addConstraint(Sketcher.Constraint("Horizontal", 8))
sketch20.addConstraint(Sketcher.Constraint("Vertical", 9))
sketch20.addConstraint(Sketcher.Constraint("Vertical", 10))
sketch20.addConstraint(Sketcher.Constraint("Coincident", 10, 1, 8, 2))
sketch20.addConstraint(Sketcher.Constraint("Perpendicular", 2, 4))
sketch20.addConstraint(Sketcher.Constraint("Parallel", 4, 7))
sketch20.addConstraint(Sketcher.Constraint("Horizontal", 0, 2, 10, 2))
sketch20.addConstraint(Sketcher.Constraint("DistanceY", 1, 1, 1, 2, Q("0.1 in")))
sketch20.addConstraint(Sketcher.Constraint("Angle", 2, Q("45 deg")))
sketch20.addConstraint(Sketcher.Constraint("DistanceY", 6, 1, 6, 2, Q("0.52 in")))
sketch20.addConstraint(Sketcher.Constraint("DistanceY", 9, 2, 9, 1, Q("4.092 in")))
sketch20.addConstraint(Sketcher.Constraint("DistanceY", -1, 1, 0, 2, Q("2.49 in")))
sketch20.addConstraint(Sketcher.Constraint("DistanceX", 7, 2, 6, 2, Q("0.03 in")))
sketch20.addConstraint(Sketcher.Constraint("DistanceX", 0, 1, 0, 2, Q("0.5575 in")))
sketch20.addConstraint(Sketcher.Constraint("DistanceX", 5, 2, 5, 1, Q("0.3865 in")))
sketch20.addConstraint(Sketcher.Constraint("DistanceX", 8, 2, 8, 1, Q("0.1325 in")))
sketch20.addConstraint(Sketcher.Constraint("DistanceY", 3, 1, 3, 2, Q("3.3605 in")))
sketch20.addConstraint(Sketcher.Constraint("DistanceX", 2, 2, -1, 1, Q("0.231 in")))
revolution2 = doc.addObject("PartDesign::Revolution", "Revolution001")
body.addObject(revolution2)
revolution2.Profile = sketch20
revolution2.ReferenceAxis = (sketch20, ["Axis0"])
revolution2.Angle = 360

sketch21 = doc.addObject("Sketcher::SketchObject", "Sketch020")
body.addObject(sketch21)
sketch21.AttachmentSupport = (doc.XZ_Plane, [""])
sketch21.MapMode = "FlatFace"
sketch21.AttachmentOffset = App.Placement(V(0, 0, -6.032 * 25.4), App.Rotation())
sketch21.addGeometry(Part.Circle(V(-21, -14, 0), V(0, 0, 1), 17), False)
sketch21.addGeometry(Part.LineSegment(V(-13, 0, 0), V(-29, 0, 0)), False)
sketch21.addGeometry(Part.LineSegment(V(-29, 0, 0), V(-37, -14, 0)), False)
sketch21.addGeometry(Part.LineSegment(V(-37, -14, 0), V(-29, -29, 0)), False)
sketch21.addGeometry(Part.LineSegment(V(-29, -29, 0), V(-13, -29, 0)), False)
sketch21.addGeometry(Part.LineSegment(V(-13, -29, 0), V(-5, -14, 0)), False)
sketch21.addGeometry(Part.LineSegment(V(-5, -14, 0), V(-13, 0, 0)), False)
sketch21.addConstraint(Sketcher.Constraint("Coincident", 1, 2, 2, 1))
sketch21.addConstraint(Sketcher.Constraint("Coincident", 2, 2, 3, 1))
sketch21.addConstraint(Sketcher.Constraint("Coincident", 3, 2, 4, 1))
sketch21.addConstraint(Sketcher.Constraint("Coincident", 4, 2, 5, 1))
sketch21.addConstraint(Sketcher.Constraint("Coincident", 5, 2, 6, 1))
sketch21.addConstraint(Sketcher.Constraint("Coincident", 6, 2, 1, 1))
sketch21.addConstraint(Sketcher.Constraint("Horizontal", 1))
sketch21.addConstraint(Sketcher.Constraint("Horizontal", 4))
sketch21.addConstraint(Sketcher.Constraint("Parallel", 2, 5))
sketch21.addConstraint(Sketcher.Constraint("Parallel", 3, 6))
sketch21.addConstraint(Sketcher.Constraint("Horizontal", 0, 3, 2, 2))
sketch21.addConstraint(Sketcher.Constraint("Horizontal", 2, 2, 5, 2))
sketch21.addConstraint(Sketcher.Constraint("Vertical", 1, 2, 3, 2))
sketch21.addConstraint(Sketcher.Constraint("Vertical", 4, 2, 6, 2))
sketch21.addConstraint(Sketcher.Constraint("Diameter", 0, Q("1.35 in")))
sketch21.addConstraint(Sketcher.Constraint("Angle", 2, Q("-120 deg")))
sketch21.addConstraint(Sketcher.Constraint("DistanceY", 0, 3, 1, 2, Q("0.56 in")))
sketch21.addConstraint(Sketcher.Constraint("DistanceX", 0, 3, -1, 1, Q("0.825 in")))
sketch21.addConstraint(Sketcher.Constraint("DistanceY", 0, 3, -1, 1, Q("0.5625 in")))
sketch21.addConstraint(Sketcher.Constraint("DistanceX", 1, 2, 1, 1, 16.42446))
sketch21.addConstraint(Sketcher.Constraint("DistanceX", 1, 2, -1, 1, 29.16723))
pocket17 = doc.addObject("PartDesign::Pocket", "Pocket016")
body.addObject(pocket17)
pocket17.Profile = sketch21
pocket17.Length = Q("0.53 in")
pocket17.Reversed = True
doc.recompute()

fillet = doc.addObject("PartDesign::Fillet", "Fillet")
body.addObject(fillet)
fillet.Base = (pocket17, edges_at(pocket17, [
    (-33.273, 139.751, -7.176),
    (-20.955, 139.751, -0.064),
    (-8.637, 139.751, -7.176),
    (-8.637, 139.751, -21.399),
    (-20.955, 139.751, -28.512),
    (-33.273, 139.751, -21.399),
]))
fillet.Radius = Q("0.03 in")

sketch22 = doc.addObject("Sketcher::SketchObject", "Sketch021")
body.addObject(sketch22)
sketch22.AttachmentSupport = (doc.XZ_Plane, [""])
sketch22.MapMode = "FlatFace"
sketch22.AttachmentOffset = App.Placement(V(0, 0, -6.032 * 25.4), App.Rotation())
sketch22.addGeometry(Part.LineSegment(V(-25, -8, 0), V(-17, -8, 0)), False)
sketch22.addGeometry(Part.LineSegment(V(-17, -8, 0), V(-14, -14, 0)), False)
sketch22.addGeometry(Part.LineSegment(V(-14, -14, 0), V(-17, -21, 0)), False)
sketch22.addGeometry(Part.LineSegment(V(-17, -21, 0), V(-25, -21, 0)), False)
sketch22.addGeometry(Part.LineSegment(V(-25, -21, 0), V(-28, -14, 0)), False)
sketch22.addGeometry(Part.LineSegment(V(-28, -14, 0), V(-25, -8, 0)), False)
sketch22.addConstraint(Sketcher.Constraint("Coincident", 0, 2, 1, 1))
sketch22.addConstraint(Sketcher.Constraint("Coincident", 1, 2, 2, 1))
sketch22.addConstraint(Sketcher.Constraint("Coincident", 2, 2, 3, 1))
sketch22.addConstraint(Sketcher.Constraint("Coincident", 3, 2, 4, 1))
sketch22.addConstraint(Sketcher.Constraint("Coincident", 4, 2, 5, 1))
sketch22.addConstraint(Sketcher.Constraint("Coincident", 5, 2, 0, 1))
sketch22.addConstraint(Sketcher.Constraint("Horizontal", 0))
sketch22.addConstraint(Sketcher.Constraint("Horizontal", 3))
sketch22.addConstraint(Sketcher.Constraint("Parallel", 1, 4))
sketch22.addConstraint(Sketcher.Constraint("Parallel", 2, 5))
sketch22.addConstraint(Sketcher.Constraint("Horizontal", 1, 2, 4, 2))
sketch22.addConstraint(Sketcher.Constraint("Vertical", 0, 2, 2, 2))
sketch22.addConstraint(Sketcher.Constraint("Vertical", 3, 2, 5, 2))
sketch22.addConstraint(Sketcher.Constraint("Angle", 1, Q("-60 deg")))
sketch22.addConstraint(Sketcher.Constraint("DistanceY", 2, 2, 0, 2, Q("0.5 in")))
sketch22.addConstraint(Sketcher.Constraint("DistanceY", 0, 2, -1, 1, Q("0.3125 in")))
sketch22.addConstraint(Sketcher.Constraint("DistanceX", 0, 1, 0, 2, 7.332348))
sketch22.addConstraint(Sketcher.Constraint("DistanceX", 1, 2, -1, 1, 13.622652))
pad3 = doc.addObject("PartDesign::Pad", "Pad002")
body.addObject(pad3)
pad3.Profile = sketch22
pad3.Length = Q("0.258 in")
pad3.Reversed = True

doc.recompute()
